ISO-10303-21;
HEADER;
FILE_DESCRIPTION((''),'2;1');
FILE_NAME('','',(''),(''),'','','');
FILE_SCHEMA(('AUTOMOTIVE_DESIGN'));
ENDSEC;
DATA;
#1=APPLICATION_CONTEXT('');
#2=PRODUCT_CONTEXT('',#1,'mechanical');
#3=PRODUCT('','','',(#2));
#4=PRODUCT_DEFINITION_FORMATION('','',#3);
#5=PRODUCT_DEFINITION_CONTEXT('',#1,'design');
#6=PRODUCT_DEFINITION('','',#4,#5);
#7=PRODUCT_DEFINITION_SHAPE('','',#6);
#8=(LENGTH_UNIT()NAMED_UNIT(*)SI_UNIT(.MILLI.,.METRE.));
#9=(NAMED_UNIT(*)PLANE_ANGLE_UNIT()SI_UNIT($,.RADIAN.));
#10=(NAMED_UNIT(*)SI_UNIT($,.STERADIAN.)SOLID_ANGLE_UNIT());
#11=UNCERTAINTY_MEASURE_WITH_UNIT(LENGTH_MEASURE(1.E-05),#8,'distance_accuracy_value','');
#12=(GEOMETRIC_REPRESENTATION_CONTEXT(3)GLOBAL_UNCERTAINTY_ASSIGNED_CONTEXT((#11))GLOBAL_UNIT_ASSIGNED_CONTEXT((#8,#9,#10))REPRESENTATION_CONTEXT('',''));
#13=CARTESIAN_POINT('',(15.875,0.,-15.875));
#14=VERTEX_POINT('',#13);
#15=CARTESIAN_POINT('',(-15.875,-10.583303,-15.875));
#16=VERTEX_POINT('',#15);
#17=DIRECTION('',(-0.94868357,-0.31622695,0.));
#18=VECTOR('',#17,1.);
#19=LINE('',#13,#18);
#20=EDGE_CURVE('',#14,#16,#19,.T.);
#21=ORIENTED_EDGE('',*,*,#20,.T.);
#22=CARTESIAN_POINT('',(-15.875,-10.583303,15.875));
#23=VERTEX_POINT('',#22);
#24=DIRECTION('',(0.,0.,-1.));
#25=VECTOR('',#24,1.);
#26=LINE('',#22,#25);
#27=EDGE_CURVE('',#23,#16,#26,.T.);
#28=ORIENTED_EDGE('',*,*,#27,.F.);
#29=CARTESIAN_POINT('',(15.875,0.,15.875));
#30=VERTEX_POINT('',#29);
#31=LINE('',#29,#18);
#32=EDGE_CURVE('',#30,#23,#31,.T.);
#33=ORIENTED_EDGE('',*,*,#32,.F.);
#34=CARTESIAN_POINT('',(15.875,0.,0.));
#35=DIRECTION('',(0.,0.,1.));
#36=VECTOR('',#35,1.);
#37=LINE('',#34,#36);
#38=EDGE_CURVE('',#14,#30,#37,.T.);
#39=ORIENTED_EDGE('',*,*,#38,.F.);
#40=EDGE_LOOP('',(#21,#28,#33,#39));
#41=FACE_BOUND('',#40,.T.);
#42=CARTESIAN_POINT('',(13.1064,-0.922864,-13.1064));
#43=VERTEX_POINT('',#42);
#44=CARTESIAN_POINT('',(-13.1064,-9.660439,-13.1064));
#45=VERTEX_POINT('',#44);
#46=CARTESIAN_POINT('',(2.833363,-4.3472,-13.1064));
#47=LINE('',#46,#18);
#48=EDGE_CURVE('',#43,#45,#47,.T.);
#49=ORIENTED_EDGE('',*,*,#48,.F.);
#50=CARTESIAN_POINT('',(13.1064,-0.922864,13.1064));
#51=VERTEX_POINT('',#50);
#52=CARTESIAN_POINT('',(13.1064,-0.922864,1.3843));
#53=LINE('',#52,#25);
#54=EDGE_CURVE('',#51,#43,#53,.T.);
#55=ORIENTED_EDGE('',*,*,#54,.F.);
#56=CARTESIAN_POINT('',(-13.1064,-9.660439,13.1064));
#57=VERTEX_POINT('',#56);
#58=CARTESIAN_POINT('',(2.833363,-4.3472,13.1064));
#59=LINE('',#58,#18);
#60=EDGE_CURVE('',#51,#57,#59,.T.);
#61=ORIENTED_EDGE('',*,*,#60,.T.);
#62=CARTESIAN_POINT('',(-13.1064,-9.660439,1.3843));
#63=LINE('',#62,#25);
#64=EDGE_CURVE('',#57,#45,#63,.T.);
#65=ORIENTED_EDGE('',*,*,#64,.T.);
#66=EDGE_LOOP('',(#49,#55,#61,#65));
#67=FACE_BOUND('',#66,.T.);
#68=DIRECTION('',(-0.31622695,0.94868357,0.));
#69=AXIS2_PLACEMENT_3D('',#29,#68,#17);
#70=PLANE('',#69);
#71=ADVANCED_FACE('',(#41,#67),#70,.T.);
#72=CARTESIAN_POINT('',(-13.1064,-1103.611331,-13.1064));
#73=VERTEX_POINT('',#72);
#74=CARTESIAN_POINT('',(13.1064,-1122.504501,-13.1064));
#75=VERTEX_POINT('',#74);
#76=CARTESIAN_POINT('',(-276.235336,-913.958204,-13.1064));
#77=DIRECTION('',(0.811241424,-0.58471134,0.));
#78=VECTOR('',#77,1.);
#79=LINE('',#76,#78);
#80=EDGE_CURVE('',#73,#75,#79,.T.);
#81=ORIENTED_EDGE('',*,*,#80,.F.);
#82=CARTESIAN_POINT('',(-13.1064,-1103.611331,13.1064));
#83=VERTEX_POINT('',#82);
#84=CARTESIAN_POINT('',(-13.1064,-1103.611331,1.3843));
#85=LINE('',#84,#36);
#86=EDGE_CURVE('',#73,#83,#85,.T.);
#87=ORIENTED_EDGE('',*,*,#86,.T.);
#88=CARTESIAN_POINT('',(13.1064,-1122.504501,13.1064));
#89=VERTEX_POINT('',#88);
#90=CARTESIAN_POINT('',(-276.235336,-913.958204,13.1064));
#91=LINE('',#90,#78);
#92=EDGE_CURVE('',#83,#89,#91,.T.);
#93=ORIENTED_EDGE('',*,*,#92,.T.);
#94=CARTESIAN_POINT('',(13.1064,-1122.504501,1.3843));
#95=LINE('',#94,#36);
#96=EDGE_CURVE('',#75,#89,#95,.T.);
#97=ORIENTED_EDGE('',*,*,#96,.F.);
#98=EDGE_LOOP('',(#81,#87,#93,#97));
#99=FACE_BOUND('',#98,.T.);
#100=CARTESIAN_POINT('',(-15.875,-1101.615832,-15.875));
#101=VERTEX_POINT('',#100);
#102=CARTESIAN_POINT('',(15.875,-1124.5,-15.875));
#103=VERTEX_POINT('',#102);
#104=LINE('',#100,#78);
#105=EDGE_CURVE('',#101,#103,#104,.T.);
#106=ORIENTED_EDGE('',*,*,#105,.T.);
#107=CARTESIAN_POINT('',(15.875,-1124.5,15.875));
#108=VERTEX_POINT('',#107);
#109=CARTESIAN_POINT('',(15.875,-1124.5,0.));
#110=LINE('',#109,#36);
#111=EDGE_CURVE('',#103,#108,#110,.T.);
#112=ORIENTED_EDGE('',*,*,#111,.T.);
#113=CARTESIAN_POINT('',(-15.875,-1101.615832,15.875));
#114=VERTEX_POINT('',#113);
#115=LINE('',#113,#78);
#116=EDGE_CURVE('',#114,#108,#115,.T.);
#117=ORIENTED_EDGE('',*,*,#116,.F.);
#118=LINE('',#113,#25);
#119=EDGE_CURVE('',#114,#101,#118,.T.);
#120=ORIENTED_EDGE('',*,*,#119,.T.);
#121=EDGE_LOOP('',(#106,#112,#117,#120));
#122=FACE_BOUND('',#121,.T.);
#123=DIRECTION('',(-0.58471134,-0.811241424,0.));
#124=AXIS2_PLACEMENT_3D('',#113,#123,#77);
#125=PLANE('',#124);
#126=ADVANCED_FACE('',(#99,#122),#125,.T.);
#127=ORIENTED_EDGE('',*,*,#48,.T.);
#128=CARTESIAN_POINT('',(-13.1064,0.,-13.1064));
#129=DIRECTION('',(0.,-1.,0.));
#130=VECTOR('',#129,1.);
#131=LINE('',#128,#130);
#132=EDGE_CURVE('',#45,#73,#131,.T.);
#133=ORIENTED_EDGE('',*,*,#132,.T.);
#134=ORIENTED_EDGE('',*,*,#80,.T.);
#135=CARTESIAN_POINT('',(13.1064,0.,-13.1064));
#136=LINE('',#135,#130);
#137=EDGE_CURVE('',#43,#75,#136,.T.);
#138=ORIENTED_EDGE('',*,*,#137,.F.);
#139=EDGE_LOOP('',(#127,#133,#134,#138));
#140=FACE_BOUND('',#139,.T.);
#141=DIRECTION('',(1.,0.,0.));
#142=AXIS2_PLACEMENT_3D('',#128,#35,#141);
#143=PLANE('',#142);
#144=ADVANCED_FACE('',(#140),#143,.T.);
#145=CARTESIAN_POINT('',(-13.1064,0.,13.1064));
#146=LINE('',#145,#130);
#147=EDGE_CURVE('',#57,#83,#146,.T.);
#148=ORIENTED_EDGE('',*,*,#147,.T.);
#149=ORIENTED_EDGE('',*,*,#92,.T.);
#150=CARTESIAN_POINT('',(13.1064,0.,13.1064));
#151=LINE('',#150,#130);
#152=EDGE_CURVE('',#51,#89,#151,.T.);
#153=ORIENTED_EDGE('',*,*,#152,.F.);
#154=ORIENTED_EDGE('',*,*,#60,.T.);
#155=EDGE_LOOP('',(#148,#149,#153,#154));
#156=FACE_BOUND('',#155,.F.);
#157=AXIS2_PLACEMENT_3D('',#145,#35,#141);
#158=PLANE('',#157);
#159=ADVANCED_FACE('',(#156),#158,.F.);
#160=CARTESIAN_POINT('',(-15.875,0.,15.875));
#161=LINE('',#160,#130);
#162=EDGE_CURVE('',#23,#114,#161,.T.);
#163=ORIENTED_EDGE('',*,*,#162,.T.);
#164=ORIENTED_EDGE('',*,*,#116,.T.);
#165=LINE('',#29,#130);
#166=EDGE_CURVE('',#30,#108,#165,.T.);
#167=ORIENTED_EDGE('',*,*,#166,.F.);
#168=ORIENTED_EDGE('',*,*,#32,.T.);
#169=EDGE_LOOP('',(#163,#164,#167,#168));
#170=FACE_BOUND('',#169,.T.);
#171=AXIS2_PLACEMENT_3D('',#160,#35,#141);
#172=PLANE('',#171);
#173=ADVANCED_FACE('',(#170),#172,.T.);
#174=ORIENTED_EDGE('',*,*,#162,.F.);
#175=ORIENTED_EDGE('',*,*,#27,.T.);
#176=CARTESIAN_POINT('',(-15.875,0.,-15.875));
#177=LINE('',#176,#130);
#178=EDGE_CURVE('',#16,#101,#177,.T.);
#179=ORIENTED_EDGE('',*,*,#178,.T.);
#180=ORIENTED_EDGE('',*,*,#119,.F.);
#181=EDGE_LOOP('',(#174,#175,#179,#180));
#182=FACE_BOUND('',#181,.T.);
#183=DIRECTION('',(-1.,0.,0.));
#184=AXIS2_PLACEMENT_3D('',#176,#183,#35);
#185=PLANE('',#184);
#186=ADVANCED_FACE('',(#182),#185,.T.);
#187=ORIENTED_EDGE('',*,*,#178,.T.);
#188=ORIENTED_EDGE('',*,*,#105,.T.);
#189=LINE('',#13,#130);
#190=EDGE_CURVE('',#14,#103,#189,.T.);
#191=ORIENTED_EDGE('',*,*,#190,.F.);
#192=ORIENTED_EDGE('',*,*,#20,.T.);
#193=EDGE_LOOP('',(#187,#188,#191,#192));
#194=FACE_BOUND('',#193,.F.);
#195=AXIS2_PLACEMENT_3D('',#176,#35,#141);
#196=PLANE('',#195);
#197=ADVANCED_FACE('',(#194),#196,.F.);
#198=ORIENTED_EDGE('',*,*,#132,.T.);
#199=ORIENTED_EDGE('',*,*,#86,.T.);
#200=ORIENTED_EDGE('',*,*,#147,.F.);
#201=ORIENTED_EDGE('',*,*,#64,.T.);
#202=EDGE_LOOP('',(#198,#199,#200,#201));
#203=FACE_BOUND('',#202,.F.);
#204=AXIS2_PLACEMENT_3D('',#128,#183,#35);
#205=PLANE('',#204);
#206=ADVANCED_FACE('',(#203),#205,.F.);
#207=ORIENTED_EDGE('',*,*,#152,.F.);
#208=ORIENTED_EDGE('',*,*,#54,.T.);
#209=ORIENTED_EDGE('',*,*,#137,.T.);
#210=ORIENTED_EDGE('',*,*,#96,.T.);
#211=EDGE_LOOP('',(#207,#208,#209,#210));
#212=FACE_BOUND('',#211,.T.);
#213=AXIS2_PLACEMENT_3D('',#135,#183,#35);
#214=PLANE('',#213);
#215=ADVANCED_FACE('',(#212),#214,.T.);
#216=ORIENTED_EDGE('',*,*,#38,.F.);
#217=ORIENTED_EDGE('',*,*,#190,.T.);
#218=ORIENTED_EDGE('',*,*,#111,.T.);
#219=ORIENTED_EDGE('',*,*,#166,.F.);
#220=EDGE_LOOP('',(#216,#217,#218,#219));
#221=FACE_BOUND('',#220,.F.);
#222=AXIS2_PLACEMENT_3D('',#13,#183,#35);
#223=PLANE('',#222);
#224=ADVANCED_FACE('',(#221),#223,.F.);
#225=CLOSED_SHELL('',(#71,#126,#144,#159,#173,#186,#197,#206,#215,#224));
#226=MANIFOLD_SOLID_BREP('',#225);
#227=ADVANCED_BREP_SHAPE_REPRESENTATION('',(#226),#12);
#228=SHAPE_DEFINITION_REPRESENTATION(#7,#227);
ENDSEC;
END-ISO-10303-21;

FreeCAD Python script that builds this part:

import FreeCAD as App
import Part
import Sketcher
from FreeCAD import Vector
Q = App.Units.Quantity


def add_polygon(sketch, points):
    """Adds a closed chain of lines whose ends are joined by coincident constraints."""
    first, n = sketch.GeometryCount, len(points)
    for a, b in zip(points, points[1:] + points[:1]):
        sketch.addGeometry(Part.LineSegment(App.Vector(*a, 0), App.Vector(*b, 0)), False)
    for i in range(n):
        sketch.addConstraint(Sketcher.Constraint("Coincident", first + i, 2, first + (i + 1) % n, 1))

doc = App.newDocument("Part")
body = doc.addObject("PartDesign::Body", "Body")

# Sketch on XZ plane
sketch1 = body.newObject("Sketcher::SketchObject", "Sketch")
sketch1.AttachmentSupport = (doc.getObject("XZ_Plane"), [""])
sketch1.MapMode = "FlatFace"
add_polygon(sketch1, [(-16, 16), (-16, -16), (16, -16), (16, 16)])  # lines 0-3
add_polygon(sketch1, [(13, -13), (-13, -13), (-13, 13), (13, 13)])  # lines 4-7
sketch1.addConstraint(Sketcher.Constraint("Vertical", 0))
sketch1.addConstraint(Sketcher.Constraint("Horizontal", 1))
sketch1.addConstraint(Sketcher.Constraint("Vertical", 2))
sketch1.addConstraint(Sketcher.Constraint("Horizontal", 3))
sketch1.addConstraint(Sketcher.Constraint("Horizontal", 4))
sketch1.addConstraint(Sketcher.Constraint("Vertical", 5))
sketch1.addConstraint(Sketcher.Constraint("Horizontal", 6))
sketch1.addConstraint(Sketcher.Constraint("Vertical", 7))
sketch1.addConstraint(Sketcher.Constraint("Symmetric", 0, 2, 2, 2, -1, 1))
sketch1.addConstraint(Sketcher.Constraint("Symmetric", 4, 2, 6, 2, -1, 1))
sketch1.addConstraint(Sketcher.Constraint("Equal", 3, 0))
sketch1.addConstraint(Sketcher.Constraint("Equal", 6, 5))
sketch1.addConstraint(Sketcher.Constraint("DistanceX", 1, 1, 1, 2, Q("1.25 in")))
sketch1.addConstraint(Sketcher.Constraint("DistanceX", 4, 2, 4, 1, Q("1.032 in")))
pad1 = body.newObject("PartDesign::Pad", "Pad")
pad1.Profile = sketch1
pad1.Length = 1124.5

# Sketch on XY plane
sketch2 = body.newObject("Sketcher::SketchObject", "Sketch001")
sketch2.AttachmentSupport = (doc.getObject("XY_Plane"), [""])
sketch2.MapMode = "FlatFace"
sketch2.AttachmentOffset = App.Placement(Vector(0, 0, 0.625 * 25.4), App.Rotation())
add_polygon(sketch2, [(16, 0), (-16, 0), (-16, -11)])  # lines 0-2
sketch2.addConstraint(Sketcher.Constraint("Horizontal", 0))
sketch2.addConstraint(Sketcher.Constraint("Vertical", 1))
sketch2.addConstraint(Sketcher.Constraint("Symmetric", 0, 2, 2, 2, -1, 1))
sketch2.addConstraint(Sketcher.Constraint("DistanceX", 0, 2, 0, 1, Q("1.25 in")))
sketch2.addConstraint(Sketcher.Constraint("Distance", 2, Q("33.467429 mm")))
pocket1 = body.newObject("PartDesign::Pocket", "Pocket")
pocket1.Profile = sketch2
pocket1.Length = Q("1.25 in")

# Sketch on XY plane
sketch3 = body.newObject("Sketcher::SketchObject", "Sketch002")
sketch3.AttachmentSupport = (doc.getObject("XY_Plane"), [""])
sketch3.MapMode = "FlatFace"
sketch3.AttachmentOffset = App.Placement(Vector(0, 0, 0.625 * 25.4), App.Rotation())
add_polygon(sketch3, [(-16, -1124), (16, -1124), (-16, -1102)])  # lines 0-2
sketch3.addConstraint(Sketcher.Constraint("Horizontal", 0))
sketch3.addConstraint(Sketcher.Constraint("Vertical", 2))
sketch3.addConstraint(Sketcher.Constraint("DistanceX", 0, 1, 0, 2, Q("1.25 in")))
sketch3.addConstraint(Sketcher.Constraint("DistanceX", -1, 1, 0, 2, Q("0.625 in")))
sketch3.addConstraint(Sketcher.Constraint("DistanceY", 2, 2, 2, 1, Q("22.884168 mm")))
sketch3.addConstraint(Sketcher.Constraint("DistanceY", 0, 2, -1, 1, Q("1124.5 mm")))
pocket2 = body.newObject("PartDesign::Pocket", "Pocket001")
pocket2.Profile = sketch3
pocket2.Length = Q("1.25 in")

doc.recompute()
